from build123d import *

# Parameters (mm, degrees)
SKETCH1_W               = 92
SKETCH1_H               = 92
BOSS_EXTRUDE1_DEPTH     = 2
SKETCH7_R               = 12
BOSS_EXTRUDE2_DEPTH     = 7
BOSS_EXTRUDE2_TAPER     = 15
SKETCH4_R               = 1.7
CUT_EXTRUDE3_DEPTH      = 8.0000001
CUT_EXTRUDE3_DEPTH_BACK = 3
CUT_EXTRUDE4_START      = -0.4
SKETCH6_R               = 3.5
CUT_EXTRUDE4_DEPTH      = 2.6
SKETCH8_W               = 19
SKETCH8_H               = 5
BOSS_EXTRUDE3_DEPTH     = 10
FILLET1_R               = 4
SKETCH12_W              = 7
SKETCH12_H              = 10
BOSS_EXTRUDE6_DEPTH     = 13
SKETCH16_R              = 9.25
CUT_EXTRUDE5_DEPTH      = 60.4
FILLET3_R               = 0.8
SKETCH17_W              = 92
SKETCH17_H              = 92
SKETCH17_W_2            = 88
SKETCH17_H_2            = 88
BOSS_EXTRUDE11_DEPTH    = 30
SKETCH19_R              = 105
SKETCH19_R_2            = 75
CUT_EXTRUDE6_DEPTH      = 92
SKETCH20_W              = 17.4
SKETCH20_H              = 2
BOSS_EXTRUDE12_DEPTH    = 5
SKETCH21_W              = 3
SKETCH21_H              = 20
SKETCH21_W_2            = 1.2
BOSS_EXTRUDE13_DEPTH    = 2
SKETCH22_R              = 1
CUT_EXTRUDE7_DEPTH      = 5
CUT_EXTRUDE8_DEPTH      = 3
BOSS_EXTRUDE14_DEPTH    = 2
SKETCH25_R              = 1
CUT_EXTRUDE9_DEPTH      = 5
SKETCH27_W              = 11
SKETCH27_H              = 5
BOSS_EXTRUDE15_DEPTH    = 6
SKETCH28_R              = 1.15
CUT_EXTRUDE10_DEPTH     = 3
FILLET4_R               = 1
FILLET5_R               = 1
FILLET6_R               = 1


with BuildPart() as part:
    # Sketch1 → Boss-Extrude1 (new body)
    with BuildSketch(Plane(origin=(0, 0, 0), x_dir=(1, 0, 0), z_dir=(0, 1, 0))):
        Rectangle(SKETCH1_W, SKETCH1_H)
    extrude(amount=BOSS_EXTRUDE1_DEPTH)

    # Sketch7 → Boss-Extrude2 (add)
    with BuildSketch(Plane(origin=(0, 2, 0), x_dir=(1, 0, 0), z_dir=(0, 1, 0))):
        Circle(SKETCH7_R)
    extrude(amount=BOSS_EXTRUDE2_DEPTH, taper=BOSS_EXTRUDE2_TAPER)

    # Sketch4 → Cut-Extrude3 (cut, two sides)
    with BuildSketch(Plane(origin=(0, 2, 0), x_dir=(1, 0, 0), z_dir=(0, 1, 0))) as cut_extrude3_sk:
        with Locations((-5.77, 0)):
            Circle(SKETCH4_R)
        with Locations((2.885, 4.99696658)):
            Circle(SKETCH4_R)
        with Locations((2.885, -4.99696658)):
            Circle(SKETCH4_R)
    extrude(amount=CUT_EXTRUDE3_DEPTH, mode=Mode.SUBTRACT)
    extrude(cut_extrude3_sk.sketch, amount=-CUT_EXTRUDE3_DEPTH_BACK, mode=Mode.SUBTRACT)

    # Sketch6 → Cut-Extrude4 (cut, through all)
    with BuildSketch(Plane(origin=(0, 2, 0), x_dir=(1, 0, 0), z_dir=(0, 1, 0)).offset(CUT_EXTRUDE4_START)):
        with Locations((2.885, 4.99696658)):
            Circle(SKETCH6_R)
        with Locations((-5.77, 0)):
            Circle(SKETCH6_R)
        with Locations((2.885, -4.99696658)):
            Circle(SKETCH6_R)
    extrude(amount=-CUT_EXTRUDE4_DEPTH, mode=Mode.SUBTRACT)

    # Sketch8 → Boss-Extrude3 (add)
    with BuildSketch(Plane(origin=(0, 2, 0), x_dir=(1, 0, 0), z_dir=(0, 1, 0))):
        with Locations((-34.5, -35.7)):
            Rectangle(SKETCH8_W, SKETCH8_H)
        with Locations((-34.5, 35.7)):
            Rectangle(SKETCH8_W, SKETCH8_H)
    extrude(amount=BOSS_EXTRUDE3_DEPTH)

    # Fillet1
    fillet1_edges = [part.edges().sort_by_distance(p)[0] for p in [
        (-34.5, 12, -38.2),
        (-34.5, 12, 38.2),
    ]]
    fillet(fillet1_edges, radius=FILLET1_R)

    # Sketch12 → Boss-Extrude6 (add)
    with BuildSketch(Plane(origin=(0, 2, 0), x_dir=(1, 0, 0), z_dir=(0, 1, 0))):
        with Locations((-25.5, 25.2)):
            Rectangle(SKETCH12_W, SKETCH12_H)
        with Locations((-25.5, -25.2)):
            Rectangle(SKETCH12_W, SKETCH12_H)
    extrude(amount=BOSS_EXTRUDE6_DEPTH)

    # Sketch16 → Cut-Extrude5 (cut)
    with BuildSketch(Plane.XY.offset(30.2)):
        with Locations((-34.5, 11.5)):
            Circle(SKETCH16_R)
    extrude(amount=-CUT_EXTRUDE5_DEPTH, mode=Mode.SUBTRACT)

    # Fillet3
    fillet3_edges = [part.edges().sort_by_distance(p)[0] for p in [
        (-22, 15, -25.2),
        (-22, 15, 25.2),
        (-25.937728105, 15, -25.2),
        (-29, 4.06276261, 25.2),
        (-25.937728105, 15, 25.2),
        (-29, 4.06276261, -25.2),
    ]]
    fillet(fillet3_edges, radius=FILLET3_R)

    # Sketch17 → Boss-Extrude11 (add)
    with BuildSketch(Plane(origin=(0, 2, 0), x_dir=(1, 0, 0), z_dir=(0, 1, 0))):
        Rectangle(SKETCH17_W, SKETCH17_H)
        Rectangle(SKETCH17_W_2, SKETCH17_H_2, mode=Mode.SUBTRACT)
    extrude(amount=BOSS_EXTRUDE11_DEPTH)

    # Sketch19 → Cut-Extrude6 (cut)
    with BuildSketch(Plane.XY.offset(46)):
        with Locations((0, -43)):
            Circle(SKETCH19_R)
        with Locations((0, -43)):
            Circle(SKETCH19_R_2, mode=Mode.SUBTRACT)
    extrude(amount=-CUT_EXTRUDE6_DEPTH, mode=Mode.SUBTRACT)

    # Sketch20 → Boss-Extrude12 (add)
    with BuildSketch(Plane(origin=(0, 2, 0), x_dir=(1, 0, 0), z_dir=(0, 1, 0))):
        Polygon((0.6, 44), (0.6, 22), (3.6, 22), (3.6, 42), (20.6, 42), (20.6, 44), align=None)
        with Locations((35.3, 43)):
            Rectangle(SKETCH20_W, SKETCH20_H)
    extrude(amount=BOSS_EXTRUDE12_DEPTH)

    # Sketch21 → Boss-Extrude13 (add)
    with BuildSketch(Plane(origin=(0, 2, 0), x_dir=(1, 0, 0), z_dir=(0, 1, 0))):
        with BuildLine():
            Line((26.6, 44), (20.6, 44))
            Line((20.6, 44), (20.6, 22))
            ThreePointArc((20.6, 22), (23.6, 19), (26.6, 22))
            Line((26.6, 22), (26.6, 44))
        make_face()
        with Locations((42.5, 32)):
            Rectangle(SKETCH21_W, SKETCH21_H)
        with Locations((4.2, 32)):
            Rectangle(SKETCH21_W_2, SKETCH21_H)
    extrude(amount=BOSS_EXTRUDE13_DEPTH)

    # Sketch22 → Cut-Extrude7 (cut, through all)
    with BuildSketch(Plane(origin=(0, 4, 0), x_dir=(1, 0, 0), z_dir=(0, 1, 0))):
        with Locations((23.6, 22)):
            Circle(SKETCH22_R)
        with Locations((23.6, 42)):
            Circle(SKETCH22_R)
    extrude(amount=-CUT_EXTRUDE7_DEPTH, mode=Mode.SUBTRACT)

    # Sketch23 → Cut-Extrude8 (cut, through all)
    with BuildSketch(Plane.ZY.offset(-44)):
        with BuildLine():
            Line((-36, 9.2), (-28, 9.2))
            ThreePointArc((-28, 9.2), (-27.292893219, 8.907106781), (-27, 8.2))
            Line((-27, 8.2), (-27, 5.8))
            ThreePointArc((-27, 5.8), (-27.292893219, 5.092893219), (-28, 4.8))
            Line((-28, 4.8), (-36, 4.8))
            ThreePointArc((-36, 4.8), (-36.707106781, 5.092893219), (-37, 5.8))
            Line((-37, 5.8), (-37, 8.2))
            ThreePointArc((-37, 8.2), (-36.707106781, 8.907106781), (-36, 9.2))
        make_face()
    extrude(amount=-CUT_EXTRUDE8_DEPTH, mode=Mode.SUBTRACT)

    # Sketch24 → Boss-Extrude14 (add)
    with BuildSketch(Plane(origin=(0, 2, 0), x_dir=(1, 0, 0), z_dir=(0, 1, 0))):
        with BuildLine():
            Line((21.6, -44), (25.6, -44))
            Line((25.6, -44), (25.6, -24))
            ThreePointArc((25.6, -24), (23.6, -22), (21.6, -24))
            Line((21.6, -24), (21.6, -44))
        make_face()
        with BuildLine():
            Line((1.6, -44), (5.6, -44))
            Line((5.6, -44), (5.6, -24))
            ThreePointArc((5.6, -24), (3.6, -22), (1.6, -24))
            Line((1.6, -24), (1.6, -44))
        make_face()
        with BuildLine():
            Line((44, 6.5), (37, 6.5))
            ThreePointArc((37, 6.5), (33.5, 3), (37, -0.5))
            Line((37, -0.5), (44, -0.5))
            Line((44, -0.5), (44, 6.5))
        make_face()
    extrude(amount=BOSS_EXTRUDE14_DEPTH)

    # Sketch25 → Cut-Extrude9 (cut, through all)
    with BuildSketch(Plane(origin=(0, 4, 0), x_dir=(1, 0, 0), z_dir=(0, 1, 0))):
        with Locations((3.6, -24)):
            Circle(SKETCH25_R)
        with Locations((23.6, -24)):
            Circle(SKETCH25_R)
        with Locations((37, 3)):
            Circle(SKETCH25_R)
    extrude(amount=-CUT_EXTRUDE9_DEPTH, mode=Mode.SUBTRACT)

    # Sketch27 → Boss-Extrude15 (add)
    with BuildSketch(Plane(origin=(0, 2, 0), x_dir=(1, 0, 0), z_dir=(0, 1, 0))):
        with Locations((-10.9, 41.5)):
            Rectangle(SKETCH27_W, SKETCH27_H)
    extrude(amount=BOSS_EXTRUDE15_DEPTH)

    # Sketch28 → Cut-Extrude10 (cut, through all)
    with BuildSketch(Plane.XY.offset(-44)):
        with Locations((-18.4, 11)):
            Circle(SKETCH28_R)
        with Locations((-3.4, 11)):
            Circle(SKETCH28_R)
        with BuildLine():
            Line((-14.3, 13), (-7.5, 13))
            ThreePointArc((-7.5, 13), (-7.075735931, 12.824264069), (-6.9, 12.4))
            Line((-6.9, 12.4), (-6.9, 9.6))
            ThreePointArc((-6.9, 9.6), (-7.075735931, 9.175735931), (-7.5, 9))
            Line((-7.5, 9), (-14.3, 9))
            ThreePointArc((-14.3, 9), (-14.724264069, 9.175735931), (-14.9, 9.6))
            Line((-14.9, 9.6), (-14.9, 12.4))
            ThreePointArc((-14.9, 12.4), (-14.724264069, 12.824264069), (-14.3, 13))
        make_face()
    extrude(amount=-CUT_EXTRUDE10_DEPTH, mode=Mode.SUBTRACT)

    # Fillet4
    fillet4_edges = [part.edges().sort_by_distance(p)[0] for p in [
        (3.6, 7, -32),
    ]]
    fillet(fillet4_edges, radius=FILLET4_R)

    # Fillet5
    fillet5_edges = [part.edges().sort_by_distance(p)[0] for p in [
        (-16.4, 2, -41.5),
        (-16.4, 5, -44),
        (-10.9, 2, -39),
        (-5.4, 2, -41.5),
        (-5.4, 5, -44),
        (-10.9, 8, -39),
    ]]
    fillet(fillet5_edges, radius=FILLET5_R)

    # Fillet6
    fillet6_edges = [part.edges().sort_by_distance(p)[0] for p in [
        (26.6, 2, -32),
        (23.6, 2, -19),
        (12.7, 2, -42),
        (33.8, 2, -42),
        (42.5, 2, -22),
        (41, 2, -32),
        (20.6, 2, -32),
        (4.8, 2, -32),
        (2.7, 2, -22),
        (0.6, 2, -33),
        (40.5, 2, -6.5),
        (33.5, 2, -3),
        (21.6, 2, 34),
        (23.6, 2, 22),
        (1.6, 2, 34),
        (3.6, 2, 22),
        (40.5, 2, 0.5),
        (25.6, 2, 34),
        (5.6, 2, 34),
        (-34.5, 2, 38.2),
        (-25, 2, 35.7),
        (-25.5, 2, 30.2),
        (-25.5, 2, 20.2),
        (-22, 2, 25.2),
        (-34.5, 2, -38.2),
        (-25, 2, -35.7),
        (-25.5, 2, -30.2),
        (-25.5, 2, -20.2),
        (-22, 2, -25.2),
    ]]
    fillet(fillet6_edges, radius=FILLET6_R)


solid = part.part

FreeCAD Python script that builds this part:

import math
import FreeCAD as App
import Part
import Sketcher

V = App.Vector


def edges_at(feature, points):
    """Names of the edges that pass closest to the given points."""
    edges = feature.Shape.Edges
    near = lambda p: min(range(len(edges)), key=lambda i: edges[i].distToShape(Part.Vertex(*p))[0])
    return sorted({f"Edge{near(p) + 1}" for p in points})

doc = App.newDocument("Part")
params = doc.addObject("Spreadsheet::Sheet", "Params")
for row, (alias, value) in enumerate([
    ("sketch1_width", "92 mm"),
    ("pad1_length", "2 mm"),
    ("sketch2_diameter", "24 mm"),
    ("pad2_length", "7 mm"),
    ("pad2_taper", "-15 deg"),
    ("sketch3_diameter", "3.4 mm"),
    ("sketch4_diameter", "7 mm"),
    ("sketch5_width", "19 mm"),
    ("sketch5_height", "5 mm"),
    ("pad3_length", "10 mm"),
    ("fillet_radius", "4 mm"),
    ("sketch6_width", "7 mm"),
    ("sketch6_height", "10 mm"),
    ("pad4_length", "13 mm"),
    ("sketch7_diameter", "18.5 mm"),
    ("pocket3_length", "60.4 mm"),
    ("fillet2_radius", "0.8 mm"),
    ("sketch8_width", "92 mm"),
    ("sketch8_width2", "88 mm"),
    ("pad5_length", "30 mm"),
    ("sketch9_diameter", "210 mm"),
    ("sketch9_diameter2", "150 mm"),
    ("pocket4_length", "92 mm"),
    ("sketch10_width", "3 mm"),
    ("sketch10_width2", "17 mm"),
    ("sketch10_height", "22 mm"),
    ("sketch10_width3", "17.4 mm"),
    ("pad6_length", "5 mm"),
    ("sketch11_radius", "3 mm"),
    ("sketch11_width", "3 mm"),
    ("sketch11_height", "22 mm"),
    ("sketch11_height2", "20 mm"),
    ("sketch11_width2", "1.2 mm"),
    ("pad7_length", "2 mm"),
    ("sketch12_diameter", "2 mm"),
    ("sketch13_radius", "1 mm"),
    ("sketch13_height", "8 mm"),
    ("sketch13_width", "2.4 mm"),
    ("sketch14_radius", "2 mm"),
    ("sketch14_radius2", "3.5 mm"),
    ("sketch14_height", "20 mm"),
    ("pad8_length", "2 mm"),
    ("sketch15_diameter", "2 mm"),
    ("sketch16_width", "11 mm"),
    ("sketch16_height", "5 mm"),
    ("pad9_length", "6 mm"),
    ("sketch17_diameter", "2.3 mm"),
    ("sketch17_radius", "0.6 mm"),
    ("sketch17_width", "6.8 mm"),
    ("sketch17_height", "2.8 mm"),
    ("fillet3_radius", "1 mm"),
    ("fillet4_radius", "1 mm"),
    ("fillet5_radius", "1 mm"),
], start=1):
    params.set(f"A{row}", alias)
    params.set(f"B{row}", "=" + value)
    params.setAlias(f"B{row}", alias)

body = doc.addObject("PartDesign::Body", "Body")

sketch1 = body.newObject("Sketcher::SketchObject", "Sketch")
sketch1.AttachmentSupport = (doc.getObject("XZ_Plane"), [""])
sketch1.MapMode = "FlatFace"
sketch1.addGeometry([
    Part.LineSegment(V(-46, -46, 0), V(-46, 46, 0)),
    Part.LineSegment(V(-46, 46, 0), V(46, 46, 0)),
    Part.LineSegment(V(46, 46, 0), V(46, -46, 0)),
    Part.LineSegment(V(46, -46, 0), V(-46, -46, 0)),
], False)
sketch1.addConstraint([
    Sketcher.Constraint("Coincident", 0, 2, 1, 1),
    Sketcher.Constraint("Coincident", 1, 2, 2, 1),
    Sketcher.Constraint("Coincident", 2, 2, 3, 1),
    Sketcher.Constraint("Coincident", 3, 2, 0, 1),
    Sketcher.Constraint("Vertical", 0),
    Sketcher.Constraint("Horizontal", 1),
    Sketcher.Constraint("Vertical", 2),
    Sketcher.Constraint("Horizontal", 3),
    Sketcher.Constraint("Symmetric", 0, 2, 2, 2, -1, 1),
    Sketcher.Constraint("Equal", 3, 0),
    Sketcher.Constraint("DistanceX", 1, 1, 1, 2, 92.0),
])
sketch1.setExpression("Constraints[10]", "Params.sketch1_width")
pad1 = body.newObject("PartDesign::Pad", "Pad")
pad1.Profile = sketch1
pad1.setExpression("Length", "Params.pad1_length")
pad1.Reversed = True

sketch2 = body.newObject("Sketcher::SketchObject", "Sketch001")
sketch2.AttachmentSupport = (doc.getObject("XZ_Plane"), [""])
sketch2.MapMode = "FlatFace"
sketch2.AttachmentOffset = App.Placement(V(0, 0, -2), App.Rotation())
sketch2.addGeometry(Part.Circle(V(0, 0, 0), V(0, 0, 1), 12), False)
sketch2.addConstraint([
    Sketcher.Constraint("Coincident", 0, 3, -1, 1),
    Sketcher.Constraint("Diameter", 0, 24.0),
])
sketch2.setExpression("Constraints[1]", "Params.sketch2_diameter")
pad2 = body.newObject("PartDesign::Pad", "Pad001")
pad2.Profile = sketch2
pad2.setExpression("Length", "Params.pad2_length")
pad2.Reversed = True
pad2.setExpression("TaperAngle", "Params.pad2_taper")

sketch3 = body.newObject("Sketcher::SketchObject", "Sketch002")
sketch3.AttachmentSupport = (doc.getObject("XZ_Plane"), [""])
sketch3.MapMode = "FlatFace"
sketch3.AttachmentOffset = App.Placement(V(0, 0, -2), App.Rotation())
sketch3.addGeometry([
    Part.Circle(V(-5.77, 0, 0), V(0, 0, 1), 1.7),
    Part.Circle(V(2.885, -4.996967, 0), V(0, 0, 1), 1.7),
    Part.Circle(V(2.885, 4.996967, 0), V(0, 0, 1), 1.7),
], False)
sketch3.addConstraint([
    Sketcher.Constraint("Equal", 0, 1),
    Sketcher.Constraint("Equal", 1, 2),
    Sketcher.Constraint("Symmetric", 1, 3, 2, 3, -1),
    Sketcher.Constraint("PointOnObject", 0, 3, -1),
    Sketcher.Constraint("Diameter", 0, 3.4),
    Sketcher.Constraint("DistanceX", 0, 3, -1, 1, 5.77),
    Sketcher.Constraint("DistanceX", -1, 1, 1, 3, 2.885),
    Sketcher.Constraint("DistanceY", 1, 3, -1, 1, 4.996967),
])
sketch3.setExpression("Constraints[4]", "Params.sketch3_diameter")
pocket1 = body.newObject("PartDesign::Pocket", "Pocket")
pocket1.Profile = sketch3
pocket1.Type = "ThroughAll"
pocket1.Midplane = True

sketch4 = body.newObject("Sketcher::SketchObject", "Sketch003")
sketch4.AttachmentSupport = (doc.getObject("XZ_Plane"), [""])
sketch4.MapMode = "FlatFace"
sketch4.AttachmentOffset = App.Placement(V(0, 0, -1.6), App.Rotation())
sketch4.addGeometry([
    Part.Circle(V(2.885, -4.996967, 0), V(0, 0, 1), 3.5),
    Part.Circle(V(-5.77, 0, 0), V(0, 0, 1), 3.5),
    Part.Circle(V(2.885, 4.996967, 0), V(0, 0, 1), 3.5),
], False)
sketch4.addConstraint([
    Sketcher.Constraint("Equal", 0, 1),
    Sketcher.Constraint("Equal", 1, 2),
    Sketcher.Constraint("Symmetric", 0, 3, 2, 3, -1),
    Sketcher.Constraint("PointOnObject", 1, 3, -1),
    Sketcher.Constraint("Diameter", 0, 7.0),
    Sketcher.Constraint("DistanceX", 1, 3, -1, 1, 5.77),
    Sketcher.Constraint("DistanceX", -1, 1, 0, 3, 2.885),
    Sketcher.Constraint("DistanceY", 0, 3, -1, 1, 4.996967),
])
sketch4.setExpression("Constraints[4]", "Params.sketch4_diameter")
pocket2 = body.newObject("PartDesign::Pocket", "Pocket001")
pocket2.Profile = sketch4
pocket2.Type = "ThroughAll"
pocket2.Reversed = True

sketch5 = body.newObject("Sketcher::SketchObject", "Sketch004")
sketch5.AttachmentSupport = (doc.getObject("XZ_Plane"), [""])
sketch5.MapMode = "FlatFace"
sketch5.AttachmentOffset = App.Placement(V(0, 0, -2), App.Rotation())
sketch5.addGeometry([
    Part.LineSegment(V(-44, 33.2, 0), V(-44, 38.2, 0)),
    Part.LineSegment(V(-44, 38.2, 0), V(-25, 38.2, 0)),
    Part.LineSegment(V(-25, 38.2, 0), V(-25, 33.2, 0)),
    Part.LineSegment(V(-25, 33.2, 0), V(-44, 33.2, 0)),
    Part.LineSegment(V(-44, -38.2, 0), V(-44, -33.2, 0)),
    Part.LineSegment(V(-44, -33.2, 0), V(-25, -33.2, 0)),
    Part.LineSegment(V(-25, -33.2, 0), V(-25, -38.2, 0)),
    Part.LineSegment(V(-25, -38.2, 0), V(-44, -38.2, 0)),
], False)
sketch5.addConstraint([
    Sketcher.Constraint("Coincident", 0, 2, 1, 1),
    Sketcher.Constraint("Coincident", 1, 2, 2, 1),
    Sketcher.Constraint("Coincident", 2, 2, 3, 1),
    Sketcher.Constraint("Coincident", 3, 2, 0, 1),
    Sketcher.Constraint("Coincident", 4, 2, 5, 1),
    Sketcher.Constraint("Coincident", 5, 2, 6, 1),
    Sketcher.Constraint("Coincident", 6, 2, 7, 1),
    Sketcher.Constraint("Coincident", 7, 2, 4, 1),
    Sketcher.Constraint("Vertical", 0),
    Sketcher.Constraint("Horizontal", 1),
    Sketcher.Constraint("Vertical", 2),
    Sketcher.Constraint("Horizontal", 3),
    Sketcher.Constraint("Vertical", 4),
    Sketcher.Constraint("Horizontal", 5),
    Sketcher.Constraint("Vertical", 6),
    Sketcher.Constraint("Horizontal", 7),
    Sketcher.Constraint("Symmetric", 3, 2, 4, 2, -1),
    Sketcher.Constraint("Symmetric", 1, 2, 6, 2, -1),
    Sketcher.Constraint("DistanceX", 1, 1, 1, 2, 19.0),
    Sketcher.Constraint("DistanceY", 0, 1, 0, 2, 5.0),
    Sketcher.Constraint("DistanceX", 0, 2, -1, 1, 44.0),
    Sketcher.Constraint("DistanceY", -1, 1, 0, 2, 38.2),
])
sketch5.setExpression("Constraints[18]", "Params.sketch5_width")
sketch5.setExpression("Constraints[19]", "Params.sketch5_height")
pad3 = body.newObject("PartDesign::Pad", "Pad002")
pad3.Profile = sketch5
pad3.setExpression("Length", "Params.pad3_length")
pad3.Reversed = True
doc.recompute()

fillet = body.newObject("PartDesign::Fillet", "Fillet")
fillet.Base = (pad3, edges_at(pad3, [(-34.5, 12, -38.2), (-34.5, 12, 38.2)]))
fillet.setExpression("Radius", "Params.fillet_radius")

sketch6 = body.newObject("Sketcher::SketchObject", "Sketch005")
sketch6.AttachmentSupport = (doc.getObject("XZ_Plane"), [""])
sketch6.MapMode = "FlatFace"
sketch6.AttachmentOffset = App.Placement(V(0, 0, -2), App.Rotation())
sketch6.addGeometry([
    Part.LineSegment(V(-29, -30.2, 0), V(-29, -20.2, 0)),
    Part.LineSegment(V(-29, -20.2, 0), V(-22, -20.2, 0)),
    Part.LineSegment(V(-22, -20.2, 0), V(-22, -30.2, 0)),
    Part.LineSegment(V(-22, -30.2, 0), V(-29, -30.2, 0)),
    Part.LineSegment(V(-29, 20.2, 0), V(-29, 30.2, 0)),
    Part.LineSegment(V(-29, 30.2, 0), V(-22, 30.2, 0)),
    Part.LineSegment(V(-22, 30.2, 0), V(-22, 20.2, 0)),
    Part.LineSegment(V(-22, 20.2, 0), V(-29, 20.2, 0)),
], False)
sketch6.addConstraint([
    Sketcher.Constraint("Coincident", 0, 2, 1, 1),
    Sketcher.Constraint("Coincident", 1, 2, 2, 1),
    Sketcher.Constraint("Coincident", 2, 2, 3, 1),
    Sketcher.Constraint("Coincident", 3, 2, 0, 1),
    Sketcher.Constraint("Coincident", 4, 2, 5, 1),
    Sketcher.Constraint("Coincident", 5, 2, 6, 1),
    Sketcher.Constraint("Coincident", 6, 2, 7, 1),
    Sketcher.Constraint("Coincident", 7, 2, 4, 1),
    Sketcher.Constraint("Vertical", 0),
    Sketcher.Constraint("Horizontal", 1),
    Sketcher.Constraint("Vertical", 2),
    Sketcher.Constraint("Horizontal", 3),
    Sketcher.Constraint("Vertical", 4),
    Sketcher.Constraint("Horizontal", 5),
    Sketcher.Constraint("Vertical", 6),
    Sketcher.Constraint("Horizontal", 7),
    Sketcher.Constraint("Symmetric", 3, 2, 4, 2, -1),
    Sketcher.Constraint("Symmetric", 1, 2, 6, 2, -1),
    Sketcher.Constraint("DistanceX", 1, 1, 1, 2, 7.0),
    Sketcher.Constraint("DistanceY", 0, 1, 0, 2, 10.0),
    Sketcher.Constraint("DistanceX", 0, 2, -1, 1, 29.0),
    Sketcher.Constraint("DistanceY", 0, 2, -1, 1, 20.2),
])
sketch6.setExpression("Constraints[18]", "Params.sketch6_width")
sketch6.setExpression("Constraints[19]", "Params.sketch6_height")
pad4 = body.newObject("PartDesign::Pad", "Pad003")
pad4.Profile = sketch6
pad4.setExpression("Length", "Params.pad4_length")
pad4.Reversed = True

sketch7 = body.newObject("Sketcher::SketchObject", "Sketch006")
sketch7.AttachmentSupport = (doc.getObject("XY_Plane"), [""])
sketch7.MapMode = "FlatFace"
sketch7.AttachmentOffset = App.Placement(V(0, 0, 30.2), App.Rotation())
sketch7.addGeometry(Part.Circle(V(-34.5, 11.5, 0), V(0, 0, 1), 9.25), False)
sketch7.addConstraint([
    Sketcher.Constraint("Diameter", 0, 18.5),
    Sketcher.Constraint("DistanceX", 0, 3, -1, 1, 34.5),
    Sketcher.Constraint("DistanceY", -1, 1, 0, 3, 11.5),
])
sketch7.setExpression("Constraints[0]", "Params.sketch7_diameter")
pocket3 = body.newObject("PartDesign::Pocket", "Pocket002")
pocket3.Profile = sketch7
pocket3.setExpression("Length", "Params.pocket3_length")
doc.recompute()

fillet2 = body.newObject("PartDesign::Fillet", "Fillet001")
fillet2.Base = (pocket3, edges_at(pocket3, [
    (-22, 15, -25.2),
    (-22, 15, 25.2),
    (-25.938, 15, -25.2),
    (-29, 4.063, 25.2),
    (-25.938, 15, 25.2),
    (-29, 4.063, -25.2),
]))
fillet2.setExpression("Radius", "Params.fillet2_radius")

sketch8 = body.newObject("Sketcher::SketchObject", "Sketch007")
sketch8.AttachmentSupport = (doc.getObject("XZ_Plane"), [""])
sketch8.MapMode = "FlatFace"
sketch8.AttachmentOffset = App.Placement(V(0, 0, -2), App.Rotation())
sketch8.addGeometry([
    Part.LineSegment(V(-46, -46, 0), V(-46, 46, 0)),
    Part.LineSegment(V(-46, 46, 0), V(46, 46, 0)),
    Part.LineSegment(V(46, 46, 0), V(46, -46, 0)),
    Part.LineSegment(V(46, -46, 0), V(-46, -46, 0)),
    Part.LineSegment(V(44, 44, 0), V(-44, 44, 0)),
    Part.LineSegment(V(-44, 44, 0), V(-44, -44, 0)),
    Part.LineSegment(V(-44, -44, 0), V(44, -44, 0)),
    Part.LineSegment(V(44, -44, 0), V(44, 44, 0)),
], False)
sketch8.addConstraint([
    Sketcher.Constraint("Coincident", 0, 2, 1, 1),
    Sketcher.Constraint("Coincident", 1, 2, 2, 1),
    Sketcher.Constraint("Coincident", 2, 2, 3, 1),
    Sketcher.Constraint("Coincident", 3, 2, 0, 1),
    Sketcher.Constraint("Coincident", 4, 2, 5, 1),
    Sketcher.Constraint("Coincident", 5, 2, 6, 1),
    Sketcher.Constraint("Coincident", 6, 2, 7, 1),
    Sketcher.Constraint("Coincident", 7, 2, 4, 1),
    Sketcher.Constraint("Vertical", 0),
    Sketcher.Constraint("Horizontal", 1),
    Sketcher.Constraint("Vertical", 2),
    Sketcher.Constraint("Horizontal", 3),
    Sketcher.Constraint("Horizontal", 4),
    Sketcher.Constraint("Vertical", 5),
    Sketcher.Constraint("Horizontal", 6),
    Sketcher.Constraint("Vertical", 7),
    Sketcher.Constraint("Symmetric", 0, 2, 2, 2, -1, 1),
    Sketcher.Constraint("Symmetric", 4, 2, 6, 2, -1, 1),
    Sketcher.Constraint("Equal", 3, 0),
    Sketcher.Constraint("Equal", 6, 5),
    Sketcher.Constraint("DistanceX", 1, 1, 1, 2, 92.0),
    Sketcher.Constraint("DistanceX", 4, 2, 4, 1, 88.0),
])
sketch8.setExpression("Constraints[20]", "Params.sketch8_width")
sketch8.setExpression("Constraints[21]", "Params.sketch8_width2")
pad5 = body.newObject("PartDesign::Pad", "Pad004")
pad5.Profile = sketch8
pad5.setExpression("Length", "Params.pad5_length")
pad5.Reversed = True

sketch9 = body.newObject("Sketcher::SketchObject", "Sketch008")
sketch9.AttachmentSupport = (doc.getObject("XY_Plane"), [""])
sketch9.MapMode = "FlatFace"
sketch9.AttachmentOffset = App.Placement(V(0, 0, 46), App.Rotation())
sketch9.addGeometry([
    Part.Circle(V(0, -43, 0), V(0, 0, 1), 105),
    Part.Circle(V(0, -43, 0), V(0, 0, 1), 75),
], False)
sketch9.addConstraint([
    Sketcher.Constraint("Coincident", 1, 3, 0, 3),
    Sketcher.Constraint("PointOnObject", 0, 3, -2),
    Sketcher.Constraint("Diameter", 0, 210.0),
    Sketcher.Constraint("Diameter", 1, 150.0),
    Sketcher.Constraint("DistanceY", 0, 3, -1, 1, 43.0),
])
sketch9.setExpression("Constraints[2]", "Params.sketch9_diameter")
sketch9.setExpression("Constraints[3]", "Params.sketch9_diameter2")
pocket4 = body.newObject("PartDesign::Pocket", "Pocket003")
pocket4.Profile = sketch9
pocket4.setExpression("Length", "Params.pocket4_length")

sketch10 = body.newObject("Sketcher::SketchObject", "Sketch009")
sketch10.AttachmentSupport = (doc.getObject("XZ_Plane"), [""])
sketch10.MapMode = "FlatFace"
sketch10.AttachmentOffset = App.Placement(V(0, 0, -2), App.Rotation())
sketch10.addGeometry([
    Part.LineSegment(V(0.6, -44, 0), V(0.6, -22, 0)),
    Part.LineSegment(V(0.6, -22, 0), V(3.6, -22, 0)),
    Part.LineSegment(V(3.6, -22, 0), V(3.6, -42, 0)),
    Part.LineSegment(V(3.6, -42, 0), V(20.6, -42, 0)),
    Part.LineSegment(V(20.6, -42, 0), V(20.6, -44, 0)),
    Part.LineSegment(V(20.6, -44, 0), V(0.6, -44, 0)),
    Part.LineSegment(V(26.6, -44, 0), V(26.6, -42, 0)),
    Part.LineSegment(V(26.6, -42, 0), V(44, -42, 0)),
    Part.LineSegment(V(44, -42, 0), V(44, -44, 0)),
    Part.LineSegment(V(44, -44, 0), V(26.6, -44, 0)),
], False)
sketch10.addConstraint([
    Sketcher.Constraint("Coincident", 0, 2, 1, 1),
    Sketcher.Constraint("Coincident", 1, 2, 2, 1),
    Sketcher.Constraint("Coincident", 2, 2, 3, 1),
    Sketcher.Constraint("Coincident", 3, 2, 4, 1),
    Sketcher.Constraint("Coincident", 4, 2, 5, 1),
    Sketcher.Constraint("Coincident", 5, 2, 0, 1),
    Sketcher.Constraint("Coincident", 6, 2, 7, 1),
    Sketcher.Constraint("Coincident", 7, 2, 8, 1),
    Sketcher.Constraint("Coincident", 8, 2, 9, 1),
    Sketcher.Constraint("Coincident", 9, 2, 6, 1),
    Sketcher.Constraint("Vertical", 0),
    Sketcher.Constraint("Horizontal", 1),
    Sketcher.Constraint("Vertical", 2),
    Sketcher.Constraint("Horizontal", 3),
    Sketcher.Constraint("Vertical", 4),
    Sketcher.Constraint("Horizontal", 5),
    Sketcher.Constraint("Vertical", 6),
    Sketcher.Constraint("Horizontal", 7),
    Sketcher.Constraint("Vertical", 8),
    Sketcher.Constraint("Horizontal", 9),
    Sketcher.Constraint("Horizontal", 3, 2, 6, 2),
    Sketcher.Constraint("Horizontal", 5, 2, 8, 2),
    Sketcher.Constraint("Equal", 5, 2),
    Sketcher.Constraint("DistanceX", 1, 1, 1, 2, 3.0),
    Sketcher.Constraint("DistanceX", 3, 1, 3, 2, 17.0),
    Sketcher.Constraint("DistanceY", 0, 1, 0, 2, 22.0),
    Sketcher.Constraint("DistanceX", 7, 1, 7, 2, 17.4),
    Sketcher.Constraint("DistanceY", 0, 2, -1, 1, 22.0),
    Sketcher.Constraint("DistanceX", -1, 1, 7, 2, 44.0),
    Sketcher.Constraint("DistanceX", 3, 2, 6, 2, 6.0),
])
sketch10.setExpression("Constraints[23]", "Params.sketch10_width")
sketch10.setExpression("Constraints[24]", "Params.sketch10_width2")
sketch10.setExpression("Constraints[25]", "Params.sketch10_height")
sketch10.setExpression("Constraints[26]", "Params.sketch10_width3")
pad6 = body.newObject("PartDesign::Pad", "Pad005")
pad6.Profile = sketch10
pad6.setExpression("Length", "Params.pad6_length")
pad6.Reversed = True

sketch11 = body.newObject("Sketcher::SketchObject", "Sketch010")
sketch11.AttachmentSupport = (doc.getObject("XZ_Plane"), [""])
sketch11.MapMode = "FlatFace"
sketch11.AttachmentOffset = App.Placement(V(0, 0, -2), App.Rotation())
sketch11.addGeometry([
    Part.LineSegment(V(26.6, -44, 0), V(20.6, -44, 0)),
    Part.LineSegment(V(20.6, -44, 0), V(20.6, -22, 0)),
    Part.ArcOfCircle(Part.Circle(V(23.6, -22, 0), V(0, 0, 1), 3), math.radians(0), math.radians(180)),
    Part.LineSegment(V(26.6, -22, 0), V(26.6, -44, 0)),
    Part.LineSegment(V(41, -42, 0), V(41, -22, 0)),
    Part.LineSegment(V(41, -22, 0), V(44, -22, 0)),
    Part.LineSegment(V(44, -22, 0), V(44, -42, 0)),
    Part.LineSegment(V(44, -42, 0), V(41, -42, 0)),
    Part.LineSegment(V(3.6, -42, 0), V(3.6, -22, 0)),
    Part.LineSegment(V(3.6, -22, 0), V(4.8, -22, 0)),
    Part.LineSegment(V(4.8, -22, 0), V(4.8, -42, 0)),
    Part.LineSegment(V(4.8, -42, 0), V(3.6, -42, 0)),
], False)
sketch11.addConstraint([
    Sketcher.Constraint("Coincident", 0, 2, 1, 1),
    Sketcher.Constraint("Tangent", 1, 2, 2, 2),
    Sketcher.Constraint("Tangent", 2, 1, 3, 1),
    Sketcher.Constraint("Coincident", 3, 2, 0, 1),
    Sketcher.Constraint("Coincident", 4, 2, 5, 1),
    Sketcher.Constraint("Coincident", 5, 2, 6, 1),
    Sketcher.Constraint("Coincident", 6, 2, 7, 1),
    Sketcher.Constraint("Coincident", 7, 2, 4, 1),
    Sketcher.Constraint("Coincident", 8, 2, 9, 1),
    Sketcher.Constraint("Coincident", 9, 2, 10, 1),
    Sketcher.Constraint("Coincident", 10, 2, 11, 1),
    Sketcher.Constraint("Coincident", 11, 2, 8, 1),
    Sketcher.Constraint("Horizontal", 0),
    Sketcher.Constraint("Vertical", 1),
    Sketcher.Constraint("Vertical", 3),
    Sketcher.Constraint("Vertical", 4),
    Sketcher.Constraint("Horizontal", 5),
    Sketcher.Constraint("Vertical", 6),
    Sketcher.Constraint("Horizontal", 7),
    Sketcher.Constraint("Vertical", 8),
    Sketcher.Constraint("Horizontal", 9),
    Sketcher.Constraint("Vertical", 10),
    Sketcher.Constraint("Horizontal", 11),
    Sketcher.Constraint("Horizontal", 2, 1, 4, 2),
    Sketcher.Constraint("Horizontal", 5, 2, 8, 2),
    Sketcher.Constraint("Horizontal", 7, 2, 10, 2),
    Sketcher.Constraint("Radius", 2, 3.0),
    Sketcher.Constraint("DistanceX", 5, 1, 5, 2, 3.0),
    Sketcher.Constraint("DistanceY", 1, 1, 1, 2, 22.0),
    Sketcher.Constraint("DistanceY", 4, 1, 4, 2, 20.0),
    Sketcher.Constraint("DistanceX", 9, 1, 9, 2, 1.2),
    Sketcher.Constraint("DistanceY", 2, 3, -1, 1, 22.0),
    Sketcher.Constraint("DistanceX", -1, 1, 4, 2, 41.0),
    Sketcher.Constraint("DistanceX", 8, 2, 1, 2, 17.0),
    Sketcher.Constraint("DistanceX", -1, 1, 2, 3, 23.6),
])
sketch11.setExpression("Constraints[26]", "Params.sketch11_radius")
sketch11.setExpression("Constraints[27]", "Params.sketch11_width")
sketch11.setExpression("Constraints[28]", "Params.sketch11_height")
sketch11.setExpression("Constraints[29]", "Params.sketch11_height2")
sketch11.setExpression("Constraints[30]", "Params.sketch11_width2")
pad7 = body.newObject("PartDesign::Pad", "Pad006")
pad7.Profile = sketch11
pad7.setExpression("Length", "Params.pad7_length")
pad7.Reversed = True

sketch12 = body.newObject("Sketcher::SketchObject", "Sketch011")
sketch12.AttachmentSupport = (doc.getObject("XZ_Plane"), [""])
sketch12.MapMode = "FlatFace"
sketch12.AttachmentOffset = App.Placement(V(0, 0, -4), App.Rotation())
sketch12.addGeometry([
    Part.Circle(V(23.6, -22, 0), V(0, 0, 1), 1),
    Part.Circle(V(23.6, -42, 0), V(0, 0, 1), 1),
], False)
sketch12.addConstraint([
    Sketcher.Constraint("Equal", 0, 1),
    Sketcher.Constraint("Vertical", 0, 3, 1, 3),
    Sketcher.Constraint("Diameter", 0, 2.0),
    Sketcher.Constraint("DistanceY", 0, 3, -1, 1, 22.0),
    Sketcher.Constraint("DistanceY", 1, 3, -1, 1, 42.0),
    Sketcher.Constraint("DistanceX", -1, 1, 0, 3, 23.6),
])
sketch12.setExpression("Constraints[2]", "Params.sketch12_diameter")
pocket5 = body.newObject("PartDesign::Pocket", "Pocket004")
pocket5.Profile = sketch12
pocket5.Type = "ThroughAll"
pocket5.Reversed = True

sketch13 = body.newObject("Sketcher::SketchObject", "Sketch012")
sketch13.AttachmentSupport = (doc.getObject("YZ_Plane"), [""])
sketch13.MapMode = "FlatFace"
sketch13.AttachmentOffset = App.Placement(V(0, 0, 44), App.Rotation())
sketch13.addGeometry([
    Part.LineSegment(V(9.2, -28, 0), V(9.2, -36, 0)),
    Part.ArcOfCircle(Part.Circle(V(8.2, -36, 0), V(0, 0, 1), 1), math.radians(-90), math.radians(0)),
    Part.LineSegment(V(8.2, -37, 0), V(5.8, -37, 0)),
    Part.ArcOfCircle(Part.Circle(V(5.8, -36, 0), V(0, 0, 1), 1), math.radians(-180), math.radians(-90)),
    Part.LineSegment(V(4.8, -36, 0), V(4.8, -28, 0)),
    Part.ArcOfCircle(Part.Circle(V(5.8, -28, 0), V(0, 0, 1), 1), math.radians(90), math.radians(180)),
    Part.LineSegment(V(5.8, -27, 0), V(8.2, -27, 0)),
    Part.ArcOfCircle(Part.Circle(V(8.2, -28, 0), V(0, 0, 1), 1), math.radians(0), math.radians(90)),
], False)
sketch13.addConstraint([
    Sketcher.Constraint("Tangent", 0, 2, 1, 2),
    Sketcher.Constraint("Tangent", 1, 1, 2, 1),
    Sketcher.Constraint("Tangent", 2, 2, 3, 2),
    Sketcher.Constraint("Tangent", 3, 1, 4, 1),
    Sketcher.Constraint("Tangent", 4, 2, 5, 2),
    Sketcher.Constraint("Tangent", 5, 1, 6, 1),
    Sketcher.Constraint("Tangent", 6, 2, 7, 2),
    Sketcher.Constraint("Tangent", 7, 1, 0, 1),
    Sketcher.Constraint("Vertical", 0),
    Sketcher.Constraint("Horizontal", 2),
    Sketcher.Constraint("Vertical", 4),
    Sketcher.Constraint("Horizontal", 6),
    Sketcher.Constraint("Equal", 1, 3),
    Sketcher.Constraint("Equal", 3, 5),
    Sketcher.Constraint("Equal", 5, 7),
    Sketcher.Constraint("Radius", 1, 1.0),
    Sketcher.Constraint("DistanceY", 0, 2, 0, 1, 8.0),
    Sketcher.Constraint("DistanceX", 2, 2, 2, 1, 2.4),
    Sketcher.Constraint("DistanceY", 1, 3, -1, 1, 36.0),
    Sketcher.Constraint("DistanceX", -1, 1, 1, 3, 8.2),
])
sketch13.setExpression("Constraints[15]", "Params.sketch13_radius")
sketch13.setExpression("Constraints[16]", "Params.sketch13_height")
sketch13.setExpression("Constraints[17]", "Params.sketch13_width")
pocket6 = body.newObject("PartDesign::Pocket", "Pocket005")
pocket6.Profile = sketch13
pocket6.Type = "ThroughAll"
pocket6.Reversed = True

sketch14 = body.newObject("Sketcher::SketchObject", "Sketch013")
sketch14.AttachmentSupport = (doc.getObject("XZ_Plane"), [""])
sketch14.MapMode = "FlatFace"
sketch14.AttachmentOffset = App.Placement(V(0, 0, -2), App.Rotation())
sketch14.addGeometry([
    Part.LineSegment(V(21.6, 44, 0), V(25.6, 44, 0)),
    Part.LineSegment(V(25.6, 44, 0), V(25.6, 24, 0)),
    Part.ArcOfCircle(Part.Circle(V(23.6, 24, 0), V(0, 0, 1), 2), math.radians(180), math.radians(360)),
    Part.LineSegment(V(21.6, 24, 0), V(21.6, 44, 0)),
    Part.LineSegment(V(1.6, 44, 0), V(5.6, 44, 0)),
    Part.LineSegment(V(5.6, 44, 0), V(5.6, 24, 0)),
    Part.ArcOfCircle(Part.Circle(V(3.6, 24, 0), V(0, 0, 1), 2), math.radians(180), math.radians(360)),
    Part.LineSegment(V(1.6, 24, 0), V(1.6, 44, 0)),
    Part.LineSegment(V(44, -6.5, 0), V(37, -6.5, 0)),
    Part.ArcOfCircle(Part.Circle(V(37, -3, 0), V(0, 0, 1), 3.5), math.radians(90), math.radians(270)),
    Part.LineSegment(V(37, 0.5, 0), V(44, 0.5, 0)),
    Part.LineSegment(V(44, 0.5, 0), V(44, -6.5, 0)),
], False)
sketch14.addConstraint([
    Sketcher.Constraint("Coincident", 0, 2, 1, 1),
    Sketcher.Constraint("Tangent", 1, 2, 2, 2),
    Sketcher.Constraint("Tangent", 2, 1, 3, 1),
    Sketcher.Constraint("Coincident", 3, 2, 0, 1),
    Sketcher.Constraint("Coincident", 4, 2, 5, 1),
    Sketcher.Constraint("Tangent", 5, 2, 6, 2),
    Sketcher.Constraint("Tangent", 6, 1, 7, 1),
    Sketcher.Constraint("Coincident", 7, 2, 4, 1),
    Sketcher.Constraint("Tangent", 8, 2, 9, 2),
    Sketcher.Constraint("Tangent", 9, 1, 10, 1),
    Sketcher.Constraint("Coincident", 10, 2, 11, 1),
    Sketcher.Constraint("Coincident", 11, 2, 8, 1),
    Sketcher.Constraint("Horizontal", 0),
    Sketcher.Constraint("Vertical", 1),
    Sketcher.Constraint("Vertical", 3),
    Sketcher.Constraint("Horizontal", 4),
    Sketcher.Constraint("Vertical", 5),
    Sketcher.Constraint("Vertical", 7),
    Sketcher.Constraint("Horizontal", 8),
    Sketcher.Constraint("Horizontal", 10),
    Sketcher.Constraint("Vertical", 11),
    Sketcher.Constraint("Equal", 2, 6),
    Sketcher.Constraint("Horizontal", 2, 3, 6, 3),
    Sketcher.Constraint("Horizontal", 3, 2, 4, 2),
    Sketcher.Constraint("Equal", 10, 11),
    Sketcher.Constraint("Radius", 2, 2.0),
    Sketcher.Constraint("Radius", 9, 3.5),
    Sketcher.Constraint("DistanceY", 1, 2, 1, 1, 20.0),
    Sketcher.Constraint("DistanceY", -1, 1, 2, 3, 24.0),
    Sketcher.Constraint("DistanceX", -1, 1, 9, 3, 37.0),
    Sketcher.Constraint("DistanceY", 9, 3, -1, 1, 3.0),
    Sketcher.Constraint("DistanceX", 6, 3, 2, 3, 20.0),
    Sketcher.Constraint("DistanceX", -1, 1, 2, 3, 23.6),
])
sketch14.setExpression("Constraints[25]", "Params.sketch14_radius")
sketch14.setExpression("Constraints[26]", "Params.sketch14_radius2")
sketch14.setExpression("Constraints[27]", "Params.sketch14_height")
pad8 = body.newObject("PartDesign::Pad", "Pad007")
pad8.Profile = sketch14
pad8.setExpression("Length", "Params.pad8_length")
pad8.Reversed = True

sketch15 = body.newObject("Sketcher::SketchObject", "Sketch014")
sketch15.AttachmentSupport = (doc.getObject("XZ_Plane"), [""])
sketch15.MapMode = "FlatFace"
sketch15.AttachmentOffset = App.Placement(V(0, 0, -4), App.Rotation())
sketch15.addGeometry([
    Part.Circle(V(3.6, 24, 0), V(0, 0, 1), 1),
    Part.Circle(V(23.6, 24, 0), V(0, 0, 1), 1),
    Part.Circle(V(37, -3, 0), V(0, 0, 1), 1),
], False)
sketch15.addConstraint([
    Sketcher.Constraint("Equal", 0, 1),
    Sketcher.Constraint("Equal", 1, 2),
    Sketcher.Constraint("Horizontal", 0, 3, 1, 3),
    Sketcher.Constraint("Diameter", 0, 2.0),
    Sketcher.Constraint("DistanceY", -1, 1, 0, 3, 24.0),
    Sketcher.Constraint("DistanceX", -1, 1, 2, 3, 37.0),
    Sketcher.Constraint("DistanceY", 2, 3, -1, 1, 3.0),
    Sketcher.Constraint("DistanceX", 0, 3, 1, 3, 20.0),
    Sketcher.Constraint("DistanceX", -1, 1, 0, 3, 3.6),
])
sketch15.setExpression("Constraints[3]", "Params.sketch15_diameter")
pocket7 = body.newObject("PartDesign::Pocket", "Pocket006")
pocket7.Profile = sketch15
pocket7.Type = "ThroughAll"
pocket7.Reversed = True

sketch16 = body.newObject("Sketcher::SketchObject", "Sketch015")
sketch16.AttachmentSupport = (doc.getObject("XZ_Plane"), [""])
sketch16.MapMode = "FlatFace"
sketch16.AttachmentOffset = App.Placement(V(0, 0, -2), App.Rotation())
sketch16.addGeometry([
    Part.LineSegment(V(-16.4, -44, 0), V(-16.4, -39, 0)),
    Part.LineSegment(V(-16.4, -39, 0), V(-5.4, -39, 0)),
    Part.LineSegment(V(-5.4, -39, 0), V(-5.4, -44, 0)),
    Part.LineSegment(V(-5.4, -44, 0), V(-16.4, -44, 0)),
], False)
sketch16.addConstraint([
    Sketcher.Constraint("Coincident", 0, 2, 1, 1),
    Sketcher.Constraint("Coincident", 1, 2, 2, 1),
    Sketcher.Constraint("Coincident", 2, 2, 3, 1),
    Sketcher.Constraint("Coincident", 3, 2, 0, 1),
    Sketcher.Constraint("Vertical", 0),
    Sketcher.Constraint("Horizontal", 1),
    Sketcher.Constraint("Vertical", 2),
    Sketcher.Constraint("Horizontal", 3),
    Sketcher.Constraint("DistanceX", 1, 1, 1, 2, 11.0),
    Sketcher.Constraint("DistanceY", 0, 1, 0, 2, 5.0),
    Sketcher.Constraint("DistanceY", 0, 2, -1, 1, 39.0),
    Sketcher.Constraint("DistanceX", 0, 2, -1, 1, 16.4),
])
sketch16.setExpression("Constraints[8]", "Params.sketch16_width")
sketch16.setExpression("Constraints[9]", "Params.sketch16_height")
pad9 = body.newObject("PartDesign::Pad", "Pad008")
pad9.Profile = sketch16
pad9.setExpression("Length", "Params.pad9_length")
pad9.Reversed = True

sketch17 = body.newObject("Sketcher::SketchObject", "Sketch016")
sketch17.AttachmentSupport = (doc.getObject("XY_Plane"), [""])
sketch17.MapMode = "FlatFace"
sketch17.AttachmentOffset = App.Placement(V(0, 0, -44), App.Rotation())
sketch17.addGeometry([
    Part.Circle(V(-18.4, 11, 0), V(0, 0, 1), 1.15),
    Part.Circle(V(-3.4, 11, 0), V(0, 0, 1), 1.15),
    Part.LineSegment(V(-7.5, 13, 0), V(-14.3, 13, 0)),
    Part.ArcOfCircle(Part.Circle(V(-14.3, 12.4, 0), V(0, 0, 1), 0.6), math.radians(90), math.radians(180)),
    Part.LineSegment(V(-14.9, 12.4, 0), V(-14.9, 9.6, 0)),
    Part.ArcOfCircle(Part.Circle(V(-14.3, 9.6, 0), V(0, 0, 1), 0.6), math.radians(180), math.radians(270)),
    Part.LineSegment(V(-14.3, 9, 0), V(-7.5, 9, 0)),
    Part.ArcOfCircle(Part.Circle(V(-7.5, 9.6, 0), V(0, 0, 1), 0.6), math.radians(-90), math.radians(0)),
    Part.LineSegment(V(-6.9, 9.6, 0), V(-6.9, 12.4, 0)),
    Part.ArcOfCircle(Part.Circle(V(-7.5, 12.4, 0), V(0, 0, 1), 0.6), math.radians(0), math.radians(90)),
], False)
sketch17.addConstraint([
    Sketcher.Constraint("Tangent", 2, 2, 3, 1),
    Sketcher.Constraint("Tangent", 3, 2, 4, 1),
    Sketcher.Constraint("Tangent", 4, 2, 5, 1),
    Sketcher.Constraint("Tangent", 5, 2, 6, 1),
    Sketcher.Constraint("Tangent", 6, 2, 7, 1),
    Sketcher.Constraint("Tangent", 7, 2, 8, 1),
    Sketcher.Constraint("Tangent", 8, 2, 9, 1),
    Sketcher.Constraint("Tangent", 9, 2, 2, 1),
    Sketcher.Constraint("Horizontal", 2),
    Sketcher.Constraint("Vertical", 4),
    Sketcher.Constraint("Horizontal", 6),
    Sketcher.Constraint("Vertical", 8),
    Sketcher.Constraint("Equal", 0, 1),
    Sketcher.Constraint("Equal", 3, 5),
    Sketcher.Constraint("Equal", 5, 7),
    Sketcher.Constraint("Equal", 7, 9),
    Sketcher.Constraint("Horizontal", 0, 3, 1, 3),
    Sketcher.Constraint("Diameter", 0, 2.3),
    Sketcher.Constraint("Radius", 3, 0.6),
    Sketcher.Constraint("DistanceX", 2, 2, 2, 1, 6.8),
    Sketcher.Constraint("DistanceY", 4, 2, 4, 1, 2.8),
    Sketcher.Constraint("DistanceY", -1, 1, 0, 3, 11.0),
    Sketcher.Constraint("DistanceY", -1, 1, 2, 2, 13.0),
    Sketcher.Constraint("DistanceX", 0, 3, 1, 3, 15.0),
    Sketcher.Constraint("DistanceX", 0, 3, -1, 1, 18.4),
    Sketcher.Constraint("DistanceX", 3, 3, -1, 1, 14.3),
])
sketch17.setExpression("Constraints[17]", "Params.sketch17_diameter")
sketch17.setExpression("Constraints[18]", "Params.sketch17_radius")
sketch17.setExpression("Constraints[19]", "Params.sketch17_width")
sketch17.setExpression("Constraints[20]", "Params.sketch17_height")
pocket8 = body.newObject("PartDesign::Pocket", "Pocket007")
pocket8.Profile = sketch17
pocket8.Type = "ThroughAll"
doc.recompute()

fillet3 = body.newObject("PartDesign::Fillet", "Fillet002")
fillet3.Base = (pocket8, edges_at(pocket8, [(3.6, 7, -32)]))
fillet3.setExpression("Radius", "Params.fillet3_radius")
doc.recompute()

fillet4 = body.newObject("PartDesign::Fillet", "Fillet003")
fillet4.Base = (fillet3, edges_at(fillet3, [
    (-16.4, 2, -41.5),
    (-16.4, 5, -44),
    (-10.9, 2, -39),
    (-5.4, 2, -41.5),
    (-5.4, 5, -44),
    (-10.9, 8, -39),
]))
fillet4.setExpression("Radius", "Params.fillet4_radius")
doc.recompute()

fillet5 = body.newObject("PartDesign::Fillet", "Fillet004")
fillet5.Base = (fillet4, edges_at(fillet4, [
    (26.6, 2, -32),
    (23.6, 2, -19),
    (12.7, 2, -42),
    (33.8, 2, -42),
    (42.5, 2, -22),
    (41, 2, -32),
    (20.6, 2, -32),
    (4.8, 2, -32),
    (2.7, 2, -22),
    (0.6, 2, -33),
    (40.5, 2, -6.5),
    (33.5, 2, -3),
    (21.6, 2, 34),
    (23.6, 2, 22),
    (1.6, 2, 34),
    (3.6, 2, 22),
    (40.5, 2, 0.5),
    (25.6, 2, 34),
    (5.6, 2, 34),
    (-34.5, 2, 38.2),
    (-25, 2, 35.7),
    (-25.5, 2, 30.2),
    (-25.5, 2, 20.2),
    (-22, 2, 25.2),
    (-34.5, 2, -38.2),
    (-25, 2, -35.7),
    (-25.5, 2, -30.2),
    (-25.5, 2, -20.2),
    (-22, 2, -25.2),
]))
fillet5.setExpression("Radius", "Params.fillet5_radius")

doc.recompute()
